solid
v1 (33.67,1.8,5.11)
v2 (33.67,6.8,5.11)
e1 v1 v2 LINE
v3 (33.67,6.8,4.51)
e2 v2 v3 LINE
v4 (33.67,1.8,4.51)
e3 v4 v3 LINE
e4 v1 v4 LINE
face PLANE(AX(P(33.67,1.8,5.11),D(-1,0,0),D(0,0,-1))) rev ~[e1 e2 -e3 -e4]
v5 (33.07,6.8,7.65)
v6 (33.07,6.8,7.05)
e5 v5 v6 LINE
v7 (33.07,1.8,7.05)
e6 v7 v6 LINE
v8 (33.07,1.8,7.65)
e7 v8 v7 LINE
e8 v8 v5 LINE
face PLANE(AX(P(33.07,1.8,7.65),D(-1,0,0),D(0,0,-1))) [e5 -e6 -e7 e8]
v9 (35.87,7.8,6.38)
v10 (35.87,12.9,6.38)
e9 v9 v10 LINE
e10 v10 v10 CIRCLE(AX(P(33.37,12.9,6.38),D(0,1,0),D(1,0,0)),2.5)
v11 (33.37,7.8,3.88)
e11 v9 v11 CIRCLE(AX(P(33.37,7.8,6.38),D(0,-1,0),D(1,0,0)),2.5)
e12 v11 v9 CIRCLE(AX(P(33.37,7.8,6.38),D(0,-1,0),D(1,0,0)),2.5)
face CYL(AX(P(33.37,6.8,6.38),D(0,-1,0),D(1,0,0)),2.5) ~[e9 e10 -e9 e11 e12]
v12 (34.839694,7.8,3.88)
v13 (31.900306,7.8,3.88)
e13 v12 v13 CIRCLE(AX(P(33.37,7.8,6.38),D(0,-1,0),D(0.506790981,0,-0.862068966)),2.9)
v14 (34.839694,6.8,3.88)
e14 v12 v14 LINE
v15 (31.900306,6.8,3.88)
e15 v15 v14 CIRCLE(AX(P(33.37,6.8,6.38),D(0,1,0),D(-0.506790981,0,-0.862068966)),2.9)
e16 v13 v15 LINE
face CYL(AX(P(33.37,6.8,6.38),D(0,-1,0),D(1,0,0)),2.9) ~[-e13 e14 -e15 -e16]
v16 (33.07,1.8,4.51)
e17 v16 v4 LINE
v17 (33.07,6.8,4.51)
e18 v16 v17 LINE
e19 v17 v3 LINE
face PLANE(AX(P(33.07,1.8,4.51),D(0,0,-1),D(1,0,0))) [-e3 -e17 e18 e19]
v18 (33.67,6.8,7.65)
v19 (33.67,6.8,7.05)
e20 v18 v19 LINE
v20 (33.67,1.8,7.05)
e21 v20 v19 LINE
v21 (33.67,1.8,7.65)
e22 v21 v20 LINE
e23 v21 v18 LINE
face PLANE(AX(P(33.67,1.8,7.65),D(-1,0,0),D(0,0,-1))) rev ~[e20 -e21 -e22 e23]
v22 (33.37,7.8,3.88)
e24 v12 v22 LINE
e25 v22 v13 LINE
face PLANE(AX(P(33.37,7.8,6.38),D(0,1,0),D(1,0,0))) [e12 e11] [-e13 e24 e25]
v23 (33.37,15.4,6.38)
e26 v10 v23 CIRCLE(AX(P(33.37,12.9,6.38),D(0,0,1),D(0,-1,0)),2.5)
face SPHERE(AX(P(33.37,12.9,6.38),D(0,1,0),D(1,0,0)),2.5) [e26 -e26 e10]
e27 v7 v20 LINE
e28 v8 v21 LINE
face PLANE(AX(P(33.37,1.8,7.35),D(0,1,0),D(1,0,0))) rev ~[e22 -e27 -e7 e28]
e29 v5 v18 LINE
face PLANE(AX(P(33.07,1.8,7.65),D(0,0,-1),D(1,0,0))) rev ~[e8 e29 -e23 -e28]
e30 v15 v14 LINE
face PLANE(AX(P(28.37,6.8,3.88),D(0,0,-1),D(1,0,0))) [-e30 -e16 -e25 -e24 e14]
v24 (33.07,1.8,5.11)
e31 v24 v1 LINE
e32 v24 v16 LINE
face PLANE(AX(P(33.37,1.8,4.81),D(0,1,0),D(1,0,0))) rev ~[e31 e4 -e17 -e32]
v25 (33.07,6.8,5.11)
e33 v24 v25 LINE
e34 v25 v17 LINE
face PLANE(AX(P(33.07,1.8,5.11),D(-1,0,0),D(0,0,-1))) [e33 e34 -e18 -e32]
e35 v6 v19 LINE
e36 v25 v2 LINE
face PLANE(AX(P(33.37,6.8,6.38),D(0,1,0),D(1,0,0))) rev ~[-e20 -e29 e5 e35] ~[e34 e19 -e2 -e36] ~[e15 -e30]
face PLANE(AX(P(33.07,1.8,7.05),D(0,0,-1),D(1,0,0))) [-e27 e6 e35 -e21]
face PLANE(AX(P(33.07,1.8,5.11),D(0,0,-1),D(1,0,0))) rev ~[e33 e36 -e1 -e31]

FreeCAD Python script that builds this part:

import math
import FreeCAD as App
import Part
import Sketcher
from FreeCAD import Vector
Q = App.Units.Quantity

doc = App.newDocument("Part")
body = doc.addObject("PartDesign::Body", "Body")

# Sketch on XY plane
sketch1 = doc.addObject("Sketcher::SketchObject", "Sketch")
body.addObject(sketch1)
sketch1.AttachmentSupport = (doc.XY_Plane, [""])
sketch1.MapMode = "FlatFace"
sketch1.AttachmentOffset = App.Placement(Vector(0, 0, -5), App.Rotation())
sketch1.addGeometry([
    Part.LineSegment(Vector(-0.3, 1.9, 0), Vector(-0.3, 1.3, 0)),
    Part.LineSegment(Vector(-0.3, 1.3, 0), Vector(0.3, 1.3, 0)),
    Part.LineSegment(Vector(0.3, 1.3, 0), Vector(0.3, 1.9, 0)),
    Part.LineSegment(Vector(0.3, 1.9, 0), Vector(-0.3, 1.9, 0)),
], False)
sketch1.addConstraint([
    Sketcher.Constraint("Coincident", 0, 2, 1, 1),
    Sketcher.Constraint("Coincident", 1, 2, 2, 1),
    Sketcher.Constraint("Coincident", 2, 2, 3, 1),
    Sketcher.Constraint("Coincident", 3, 2, 0, 1),
    Sketcher.Constraint("Vertical", 0),
    Sketcher.Constraint("Horizontal", 1),
    Sketcher.Constraint("Vertical", 2),
    Sketcher.Constraint("Horizontal", 3),
    Sketcher.Constraint("Equal", 3, 0),
    Sketcher.Constraint("DistanceX", 1, 1, 1, 2, Q("0.6 mm")),
    Sketcher.Constraint("DistanceX", 0, 2, -1, 1, Q("0.3 mm")),
    Sketcher.Constraint("DistanceY", -1, 1, 0, 2, Q("1.27 mm")),
])
pad1 = doc.addObject("PartDesign::Pad", "Pad")
body.addObject(pad1)
pad1.Profile = sketch1
pad1.Length = 5
body2 = doc.addObject("PartDesign::Body", "Body001")

# Sketch on XY plane
sketch2 = doc.addObject("Sketcher::SketchObject", "Sketch001")
body2.addObject(sketch2)
sketch2.AttachmentSupport = (doc.getObject("XY_Plane001"), [""])
sketch2.MapMode = "FlatFace"
sketch2.AttachmentOffset = App.Placement(Vector(0, 0, -5), App.Rotation())
sketch2.addGeometry([
    Part.LineSegment(Vector(-0.3, -0.7, 0), Vector(-0.3, -1.3, 0)),
    Part.LineSegment(Vector(-0.3, -1.3, 0), Vector(0.3, -1.3, 0)),
    Part.LineSegment(Vector(0.3, -1.3, 0), Vector(0.3, -0.7, 0)),
    Part.LineSegment(Vector(0.3, -0.7, 0), Vector(-0.3, -0.7, 0)),
], False)
sketch2.addConstraint([
    Sketcher.Constraint("Coincident", 0, 2, 1, 1),
    Sketcher.Constraint("Coincident", 1, 2, 2, 1),
    Sketcher.Constraint("Coincident", 2, 2, 3, 1),
    Sketcher.Constraint("Coincident", 3, 2, 0, 1),
    Sketcher.Constraint("Vertical", 0),
    Sketcher.Constraint("Horizontal", 1),
    Sketcher.Constraint("Vertical", 2),
    Sketcher.Constraint("Horizontal", 3),
    Sketcher.Constraint("Equal", 3, 0),
    Sketcher.Constraint("DistanceX", 1, 1, 1, 2, Q("0.6 mm")),
    Sketcher.Constraint("DistanceX", 0, 2, -1, 1, Q("0.3 mm")),
    Sketcher.Constraint("DistanceY", 0, 2, -1, 1, Q("1.27 mm")),
])
pad2 = doc.addObject("PartDesign::Pad", "Pad001")
body2.addObject(pad2)
pad2.Profile = sketch2
pad2.Length = 5
body3 = doc.addObject("PartDesign::Body", "Body002")

# Sketch on XY plane
sketch3 = doc.addObject("Sketcher::SketchObject", "Sketch002")
body3.addObject(sketch3)
sketch3.AttachmentSupport = (doc.getObject("XY_Plane002"), [""])
sketch3.MapMode = "FlatFace"
sketch3.addGeometry(Part.Circle(Vector(0, 0, 0), Vector(0, 0, 1), 2.5), False)
sketch3.addConstraint([
    Sketcher.Constraint("Coincident", 0, 3, -1, 1),
    Sketcher.Constraint("Diameter", 0, Q("5 mm")),
])
pad3 = doc.addObject("PartDesign::Pad", "Pad002")
body3.addObject(pad3)
pad3.Profile = sketch3
pad3.Length = 6.1
body4 = doc.addObject("PartDesign::Body", "Body003")

# Sketch on XY plane
sketch4 = doc.addObject("Sketcher::SketchObject", "Sketch003")
body4.addObject(sketch4)
sketch4.AttachmentSupport = (doc.getObject("XY_Plane003"), [""])
sketch4.MapMode = "FlatFace"
sketch4.addGeometry([
    Part.LineSegment(Vector(-5, 12, 0), Vector(-5, 2, 0)),
    Part.LineSegment(Vector(-5, 2, 0), Vector(5, 2, 0)),
    Part.LineSegment(Vector(5, 2, 0), Vector(5, 12, 0)),
    Part.LineSegment(Vector(5, 12, 0), Vector(-5, 12, 0)),
], False)
sketch4.addConstraint([
    Sketcher.Constraint("Coincident", 0, 2, 1, 1),
    Sketcher.Constraint("Coincident", 1, 2, 2, 1),
    Sketcher.Constraint("Coincident", 2, 2, 3, 1),
    Sketcher.Constraint("Coincident", 3, 2, 0, 1),
    Sketcher.Constraint("Vertical", 0),
    Sketcher.Constraint("Horizontal", 1),
    Sketcher.Constraint("Vertical", 2),
    Sketcher.Constraint("Horizontal", 3),
    Sketcher.Constraint("Equal", 3, 0),
    Sketcher.Constraint("DistanceX", 1, 1, 1, 2, Q("10 mm")),
    Sketcher.Constraint("DistanceX", 0, 2, -1, 1, Q("5 mm")),
    Sketcher.Constraint("DistanceY", -1, 1, 0, 2, Q("2.5 mm")),
])
pad4 = doc.addObject("PartDesign::Pad", "Pad003")
body4.addObject(pad4)
pad4.Profile = sketch4
pad4.Length = 10
body5 = doc.addObject("PartDesign::Body", "Body004")

# Sketch on XY plane
sketch5 = doc.addObject("Sketcher::SketchObject", "Sketch004")
body5.addObject(sketch5)
sketch5.AttachmentSupport = (doc.getObject("XY_Plane004"), [""])
sketch5.MapMode = "FlatFace"
sketch5.addGeometry(Part.Circle(Vector(0, 0, 0), Vector(0, 0, 1), 2.9), False)
sketch5.addConstraint([
    Sketcher.Constraint("Coincident", 0, 3, -1, 1),
    Sketcher.Constraint("Diameter", 0, Q("5.8 mm")),
])
pad5 = doc.addObject("PartDesign::Pad", "Pad004")
body5.addObject(pad5)
pad5.Profile = sketch5
pad5.Length = 1
doc.recompute()

boolean = doc.addObject("PartDesign::Boolean", "Boolean")
body5.addObject(boolean)
boolean.Type = "Cut"
boolean.addObjects([body4])
body6 = doc.addObject("PartDesign::Body", "Body005")

# Sketch on XZ plane
sketch6 = doc.addObject("Sketcher::SketchObject", "Sketch005")
body6.addObject(sketch6)
sketch6.AttachmentSupport = (doc.getObject("XZ_Plane005"), [""])
sketch6.MapMode = "FlatFace"
sketch6.addGeometry([
    Part.ArcOfCircle(Part.Circle(Vector(0, 6.1, 0), Vector(0, 0, 1), 2.5), math.radians(-90), math.radians(90)),
    Part.LineSegment(Vector(0, 8.6, 0), Vector(0, 3.6, 0)),
], False)
sketch6.addConstraint([
    Sketcher.Constraint("Coincident", 0, 1, 1, 2),
    Sketcher.Constraint("Coincident", 1, 1, 0, 2),
    Sketcher.Constraint("Vertical", 1),
    Sketcher.Constraint("PointOnObject", 0, 3, -2),
    Sketcher.Constraint("PointOnObject", 0, 1, -2),
    Sketcher.Constraint("Radius", 0, Q("2.5 mm")),
    Sketcher.Constraint("DistanceY", -1, 1, 0, 3, Q("6.1 mm")),
])
revolution = doc.addObject("PartDesign::Revolution", "Revolution")
body6.addObject(revolution)
revolution.Profile = sketch6
revolution.ReferenceAxis = (sketch6, ["V_Axis"])
revolution.Angle = 360
doc.recompute()

boolean2 = doc.addObject("PartDesign::Boolean", "Boolean001")
body6.addObject(boolean2)
boolean2.Type = "Fuse"
boolean2.addObjects([body3])
doc.recompute()

boolean3 = doc.addObject("PartDesign::Boolean", "Boolean002")
body6.addObject(boolean3)
boolean3.Type = "Fuse"
boolean3.addObjects([body5])
doc.recompute()

boolean4 = doc.addObject("PartDesign::Boolean", "Boolean003")
body6.addObject(boolean4)
boolean4.Type = "Fuse"
boolean4.addObjects([body])
doc.recompute()

boolean5 = doc.addObject("PartDesign::Boolean", "Boolean004")
body6.addObject(boolean5)
boolean5.Type = "Fuse"
boolean5.addObjects([body2])
body7 = doc.addObject("PartDesign::Body", "Body006")
doc.recompute()

body6.Placement = App.Placement(Vector(0, 0, 0), App.Rotation(Vector(1, 0, 0), 270))
boolean6 = doc.addObject("PartDesign::Boolean", "Boolean005")
body7.addObject(boolean6)
boolean6.Type = "Fuse"
boolean6.addObjects([body6])
body8 = doc.addObject("PartDesign::Body", "Body007")
doc.recompute()

body7.Placement = App.Placement(Vector(33.37, 6.8, 6.38), App.Rotation(Vector(0, 0, 1), 0))
boolean7 = doc.addObject("PartDesign::Boolean", "Boolean006")
body8.addObject(boolean7)
boolean7.Type = "Fuse"
boolean7.addObjects([body7])

doc.recompute()
